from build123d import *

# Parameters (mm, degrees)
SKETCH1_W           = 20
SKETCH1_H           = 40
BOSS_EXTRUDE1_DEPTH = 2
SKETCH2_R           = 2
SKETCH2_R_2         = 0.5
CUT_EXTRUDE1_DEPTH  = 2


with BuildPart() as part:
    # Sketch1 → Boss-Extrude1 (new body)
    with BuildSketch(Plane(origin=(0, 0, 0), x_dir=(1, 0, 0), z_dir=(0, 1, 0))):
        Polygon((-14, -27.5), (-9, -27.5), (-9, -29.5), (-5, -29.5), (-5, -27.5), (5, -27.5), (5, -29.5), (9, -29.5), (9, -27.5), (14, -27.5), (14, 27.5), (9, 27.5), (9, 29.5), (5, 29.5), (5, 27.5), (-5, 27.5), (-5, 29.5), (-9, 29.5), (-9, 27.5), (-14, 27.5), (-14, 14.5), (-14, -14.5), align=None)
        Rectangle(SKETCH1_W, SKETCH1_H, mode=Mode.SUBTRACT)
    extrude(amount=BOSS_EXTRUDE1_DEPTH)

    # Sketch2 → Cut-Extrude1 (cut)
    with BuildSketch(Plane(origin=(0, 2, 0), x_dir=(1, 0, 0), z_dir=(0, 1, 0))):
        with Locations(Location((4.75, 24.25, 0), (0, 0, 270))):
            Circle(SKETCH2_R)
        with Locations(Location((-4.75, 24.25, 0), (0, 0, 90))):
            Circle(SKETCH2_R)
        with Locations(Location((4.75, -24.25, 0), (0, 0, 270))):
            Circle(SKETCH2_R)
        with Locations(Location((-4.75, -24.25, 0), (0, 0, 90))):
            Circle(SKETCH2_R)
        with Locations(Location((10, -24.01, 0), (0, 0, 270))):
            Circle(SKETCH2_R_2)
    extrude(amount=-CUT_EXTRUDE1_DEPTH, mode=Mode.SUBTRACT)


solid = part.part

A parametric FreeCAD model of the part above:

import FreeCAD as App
import Part
import Sketcher
from FreeCAD import Vector
Q = App.Units.Quantity


def add_polygon(sketch, points):
    """Adds a closed chain of lines whose ends are joined by coincident constraints."""
    first, n = sketch.GeometryCount, len(points)
    for a, b in zip(points, points[1:] + points[:1]):
        sketch.addGeometry(Part.LineSegment(App.Vector(*a, 0), App.Vector(*b, 0)), False)
    for i in range(n):
        sketch.addConstraint(Sketcher.Constraint("Coincident", first + i, 2, first + (i + 1) % n, 1))

doc = App.newDocument("Part")
body = doc.addObject("PartDesign::Body", "Body")

# Sketch on XZ plane
sketch1 = doc.addObject("Sketcher::SketchObject", "Sketch")
body.addObject(sketch1)
sketch1.AttachmentSupport = (doc.XZ_Plane, [""])
sketch1.MapMode = "FlatFace"
add_polygon(sketch1, [(-14, 27.5), (-9, 27.5), (-9, 29.5), (-5, 29.5), (-5, 27.5), (5, 27.5), (5, 29.5), (9, 29.5), (9, 27.5), (14, 27.5), (14, -27.5), (9, -27.5), (9, -29.5), (5, -29.5), (5, -27.5), (-5, -27.5), (-5, -29.5), (-9, -29.5), (-9, -27.5), (-14, -27.5)])  # lines 0-19
add_polygon(sketch1, [(10, 20), (-10, 20), (-10, -20), (10, -20)])  # lines 20-23
sketch1.addConstraint(Sketcher.Constraint("Horizontal", 0))
sketch1.addConstraint(Sketcher.Constraint("Vertical", 1))
sketch1.addConstraint(Sketcher.Constraint("Horizontal", 2))
sketch1.addConstraint(Sketcher.Constraint("Vertical", 3))
sketch1.addConstraint(Sketcher.Constraint("Horizontal", 4))
sketch1.addConstraint(Sketcher.Constraint("Vertical", 5))
sketch1.addConstraint(Sketcher.Constraint("Horizontal", 6))
sketch1.addConstraint(Sketcher.Constraint("Vertical", 7))
sketch1.addConstraint(Sketcher.Constraint("Horizontal", 8))
sketch1.addConstraint(Sketcher.Constraint("Vertical", 9))
sketch1.addConstraint(Sketcher.Constraint("Horizontal", 10))
sketch1.addConstraint(Sketcher.Constraint("Vertical", 11))
sketch1.addConstraint(Sketcher.Constraint("Horizontal", 12))
sketch1.addConstraint(Sketcher.Constraint("Vertical", 13))
sketch1.addConstraint(Sketcher.Constraint("Horizontal", 14))
sketch1.addConstraint(Sketcher.Constraint("Vertical", 15))
sketch1.addConstraint(Sketcher.Constraint("Horizontal", 16))
sketch1.addConstraint(Sketcher.Constraint("Vertical", 17))
sketch1.addConstraint(Sketcher.Constraint("Horizontal", 18))
sketch1.addConstraint(Sketcher.Constraint("Vertical", 19))
sketch1.addConstraint(Sketcher.Constraint("Horizontal", 20))
sketch1.addConstraint(Sketcher.Constraint("Vertical", 21))
sketch1.addConstraint(Sketcher.Constraint("Horizontal", 22))
sketch1.addConstraint(Sketcher.Constraint("Vertical", 23))
sketch1.addConstraint(Sketcher.Constraint("Symmetric", 0, 2, 10, 2, -1, 1))
sketch1.addConstraint(Sketcher.Constraint("Symmetric", 2, 2, 12, 2, -1, 1))
sketch1.addConstraint(Sketcher.Constraint("Symmetric", 4, 2, 14, 2, -1, 1))
sketch1.addConstraint(Sketcher.Constraint("Symmetric", 6, 2, 16, 2, -1, 1))
sketch1.addConstraint(Sketcher.Constraint("Symmetric", 8, 2, 18, 2, -1, 1))
sketch1.addConstraint(Sketcher.Constraint("Symmetric", 20, 2, 22, 2, -1, 1))
sketch1.addConstraint(Sketcher.Constraint("Symmetric", 2, 2, 5, 2, -2))
sketch1.addConstraint(Sketcher.Constraint("Symmetric", 0, 2, 7, 2, -2))
sketch1.addConstraint(Sketcher.Constraint("Horizontal", 0, 2, 3, 2))
sketch1.addConstraint(Sketcher.Constraint("DistanceX", 0, 1, 0, 2, Q("5 mm")))
sketch1.addConstraint(Sketcher.Constraint("DistanceX", 2, 1, 2, 2, Q("4 mm")))
sketch1.addConstraint(Sketcher.Constraint("DistanceX", 4, 1, 4, 2, Q("10 mm")))
sketch1.addConstraint(Sketcher.Constraint("DistanceX", 20, 2, 20, 1, Q("20 mm")))
sketch1.addConstraint(Sketcher.Constraint("DistanceY", 1, 1, 1, 2, Q("2 mm")))
sketch1.addConstraint(Sketcher.Constraint("DistanceY", 9, 2, 9, 1, Q("55 mm")))
sketch1.addConstraint(Sketcher.Constraint("DistanceY", 21, 2, 21, 1, Q("40 mm")))
pad1 = doc.addObject("PartDesign::Pad", "Pad")
body.addObject(pad1)
pad1.Profile = sketch1
pad1.Length = 2
pad1.Reversed = True

# Sketch on XZ plane
sketch2 = doc.addObject("Sketcher::SketchObject", "Sketch001")
body.addObject(sketch2)
sketch2.AttachmentSupport = (doc.XZ_Plane, [""])
sketch2.MapMode = "FlatFace"
sketch2.AttachmentOffset = App.Placement(Vector(0, 0, -2), App.Rotation())
sketch2.addGeometry(Part.Circle(Vector(4.75, -24.25, 0), Vector(0, 0, 1), 2), False)
sketch2.addGeometry(Part.Circle(Vector(-4.75, -24.25, 0), Vector(0, 0, 1), 2), False)
sketch2.addGeometry(Part.Circle(Vector(4.75, 24.25, 0), Vector(0, 0, 1), 2), False)
sketch2.addGeometry(Part.Circle(Vector(-4.75, 24.25, 0), Vector(0, 0, 1), 2), False)
sketch2.addGeometry(Part.Circle(Vector(10, 24.01, 0), Vector(0, 0, 1), 0.5), False)
sketch2.addConstraint(Sketcher.Constraint("Equal", 0, 1))
sketch2.addConstraint(Sketcher.Constraint("Equal", 1, 2))
sketch2.addConstraint(Sketcher.Constraint("Equal", 2, 3))
sketch2.addConstraint(Sketcher.Constraint("Symmetric", 1, 3, 2, 3, -1, 1))
sketch2.addConstraint(Sketcher.Constraint("Symmetric", 0, 3, 3, 3, -1, 1))
sketch2.addConstraint(Sketcher.Constraint("Symmetric", 0, 3, 1, 3, -2))
sketch2.addConstraint(Sketcher.Constraint("Diameter", 0, Q("4 mm")))
sketch2.addConstraint(Sketcher.Constraint("Diameter", 4, Q("1 mm")))
sketch2.addConstraint(Sketcher.Constraint("DistanceX", -1, 1, 4, 3, Q("10 mm")))
sketch2.addConstraint(Sketcher.Constraint("DistanceX", 1, 3, 0, 3, Q("9.5 mm")))
sketch2.addConstraint(Sketcher.Constraint("DistanceY", 0, 3, 2, 3, Q("48.5 mm")))
sketch2.addConstraint(Sketcher.Constraint("DistanceY", -1, 1, 4, 3, Q("24.01 mm")))
pocket1 = doc.addObject("PartDesign::Pocket", "Pocket")
body.addObject(pocket1)
pocket1.Profile = sketch2
pocket1.Length = 2
pocket1.Reversed = True

doc.recompute()
